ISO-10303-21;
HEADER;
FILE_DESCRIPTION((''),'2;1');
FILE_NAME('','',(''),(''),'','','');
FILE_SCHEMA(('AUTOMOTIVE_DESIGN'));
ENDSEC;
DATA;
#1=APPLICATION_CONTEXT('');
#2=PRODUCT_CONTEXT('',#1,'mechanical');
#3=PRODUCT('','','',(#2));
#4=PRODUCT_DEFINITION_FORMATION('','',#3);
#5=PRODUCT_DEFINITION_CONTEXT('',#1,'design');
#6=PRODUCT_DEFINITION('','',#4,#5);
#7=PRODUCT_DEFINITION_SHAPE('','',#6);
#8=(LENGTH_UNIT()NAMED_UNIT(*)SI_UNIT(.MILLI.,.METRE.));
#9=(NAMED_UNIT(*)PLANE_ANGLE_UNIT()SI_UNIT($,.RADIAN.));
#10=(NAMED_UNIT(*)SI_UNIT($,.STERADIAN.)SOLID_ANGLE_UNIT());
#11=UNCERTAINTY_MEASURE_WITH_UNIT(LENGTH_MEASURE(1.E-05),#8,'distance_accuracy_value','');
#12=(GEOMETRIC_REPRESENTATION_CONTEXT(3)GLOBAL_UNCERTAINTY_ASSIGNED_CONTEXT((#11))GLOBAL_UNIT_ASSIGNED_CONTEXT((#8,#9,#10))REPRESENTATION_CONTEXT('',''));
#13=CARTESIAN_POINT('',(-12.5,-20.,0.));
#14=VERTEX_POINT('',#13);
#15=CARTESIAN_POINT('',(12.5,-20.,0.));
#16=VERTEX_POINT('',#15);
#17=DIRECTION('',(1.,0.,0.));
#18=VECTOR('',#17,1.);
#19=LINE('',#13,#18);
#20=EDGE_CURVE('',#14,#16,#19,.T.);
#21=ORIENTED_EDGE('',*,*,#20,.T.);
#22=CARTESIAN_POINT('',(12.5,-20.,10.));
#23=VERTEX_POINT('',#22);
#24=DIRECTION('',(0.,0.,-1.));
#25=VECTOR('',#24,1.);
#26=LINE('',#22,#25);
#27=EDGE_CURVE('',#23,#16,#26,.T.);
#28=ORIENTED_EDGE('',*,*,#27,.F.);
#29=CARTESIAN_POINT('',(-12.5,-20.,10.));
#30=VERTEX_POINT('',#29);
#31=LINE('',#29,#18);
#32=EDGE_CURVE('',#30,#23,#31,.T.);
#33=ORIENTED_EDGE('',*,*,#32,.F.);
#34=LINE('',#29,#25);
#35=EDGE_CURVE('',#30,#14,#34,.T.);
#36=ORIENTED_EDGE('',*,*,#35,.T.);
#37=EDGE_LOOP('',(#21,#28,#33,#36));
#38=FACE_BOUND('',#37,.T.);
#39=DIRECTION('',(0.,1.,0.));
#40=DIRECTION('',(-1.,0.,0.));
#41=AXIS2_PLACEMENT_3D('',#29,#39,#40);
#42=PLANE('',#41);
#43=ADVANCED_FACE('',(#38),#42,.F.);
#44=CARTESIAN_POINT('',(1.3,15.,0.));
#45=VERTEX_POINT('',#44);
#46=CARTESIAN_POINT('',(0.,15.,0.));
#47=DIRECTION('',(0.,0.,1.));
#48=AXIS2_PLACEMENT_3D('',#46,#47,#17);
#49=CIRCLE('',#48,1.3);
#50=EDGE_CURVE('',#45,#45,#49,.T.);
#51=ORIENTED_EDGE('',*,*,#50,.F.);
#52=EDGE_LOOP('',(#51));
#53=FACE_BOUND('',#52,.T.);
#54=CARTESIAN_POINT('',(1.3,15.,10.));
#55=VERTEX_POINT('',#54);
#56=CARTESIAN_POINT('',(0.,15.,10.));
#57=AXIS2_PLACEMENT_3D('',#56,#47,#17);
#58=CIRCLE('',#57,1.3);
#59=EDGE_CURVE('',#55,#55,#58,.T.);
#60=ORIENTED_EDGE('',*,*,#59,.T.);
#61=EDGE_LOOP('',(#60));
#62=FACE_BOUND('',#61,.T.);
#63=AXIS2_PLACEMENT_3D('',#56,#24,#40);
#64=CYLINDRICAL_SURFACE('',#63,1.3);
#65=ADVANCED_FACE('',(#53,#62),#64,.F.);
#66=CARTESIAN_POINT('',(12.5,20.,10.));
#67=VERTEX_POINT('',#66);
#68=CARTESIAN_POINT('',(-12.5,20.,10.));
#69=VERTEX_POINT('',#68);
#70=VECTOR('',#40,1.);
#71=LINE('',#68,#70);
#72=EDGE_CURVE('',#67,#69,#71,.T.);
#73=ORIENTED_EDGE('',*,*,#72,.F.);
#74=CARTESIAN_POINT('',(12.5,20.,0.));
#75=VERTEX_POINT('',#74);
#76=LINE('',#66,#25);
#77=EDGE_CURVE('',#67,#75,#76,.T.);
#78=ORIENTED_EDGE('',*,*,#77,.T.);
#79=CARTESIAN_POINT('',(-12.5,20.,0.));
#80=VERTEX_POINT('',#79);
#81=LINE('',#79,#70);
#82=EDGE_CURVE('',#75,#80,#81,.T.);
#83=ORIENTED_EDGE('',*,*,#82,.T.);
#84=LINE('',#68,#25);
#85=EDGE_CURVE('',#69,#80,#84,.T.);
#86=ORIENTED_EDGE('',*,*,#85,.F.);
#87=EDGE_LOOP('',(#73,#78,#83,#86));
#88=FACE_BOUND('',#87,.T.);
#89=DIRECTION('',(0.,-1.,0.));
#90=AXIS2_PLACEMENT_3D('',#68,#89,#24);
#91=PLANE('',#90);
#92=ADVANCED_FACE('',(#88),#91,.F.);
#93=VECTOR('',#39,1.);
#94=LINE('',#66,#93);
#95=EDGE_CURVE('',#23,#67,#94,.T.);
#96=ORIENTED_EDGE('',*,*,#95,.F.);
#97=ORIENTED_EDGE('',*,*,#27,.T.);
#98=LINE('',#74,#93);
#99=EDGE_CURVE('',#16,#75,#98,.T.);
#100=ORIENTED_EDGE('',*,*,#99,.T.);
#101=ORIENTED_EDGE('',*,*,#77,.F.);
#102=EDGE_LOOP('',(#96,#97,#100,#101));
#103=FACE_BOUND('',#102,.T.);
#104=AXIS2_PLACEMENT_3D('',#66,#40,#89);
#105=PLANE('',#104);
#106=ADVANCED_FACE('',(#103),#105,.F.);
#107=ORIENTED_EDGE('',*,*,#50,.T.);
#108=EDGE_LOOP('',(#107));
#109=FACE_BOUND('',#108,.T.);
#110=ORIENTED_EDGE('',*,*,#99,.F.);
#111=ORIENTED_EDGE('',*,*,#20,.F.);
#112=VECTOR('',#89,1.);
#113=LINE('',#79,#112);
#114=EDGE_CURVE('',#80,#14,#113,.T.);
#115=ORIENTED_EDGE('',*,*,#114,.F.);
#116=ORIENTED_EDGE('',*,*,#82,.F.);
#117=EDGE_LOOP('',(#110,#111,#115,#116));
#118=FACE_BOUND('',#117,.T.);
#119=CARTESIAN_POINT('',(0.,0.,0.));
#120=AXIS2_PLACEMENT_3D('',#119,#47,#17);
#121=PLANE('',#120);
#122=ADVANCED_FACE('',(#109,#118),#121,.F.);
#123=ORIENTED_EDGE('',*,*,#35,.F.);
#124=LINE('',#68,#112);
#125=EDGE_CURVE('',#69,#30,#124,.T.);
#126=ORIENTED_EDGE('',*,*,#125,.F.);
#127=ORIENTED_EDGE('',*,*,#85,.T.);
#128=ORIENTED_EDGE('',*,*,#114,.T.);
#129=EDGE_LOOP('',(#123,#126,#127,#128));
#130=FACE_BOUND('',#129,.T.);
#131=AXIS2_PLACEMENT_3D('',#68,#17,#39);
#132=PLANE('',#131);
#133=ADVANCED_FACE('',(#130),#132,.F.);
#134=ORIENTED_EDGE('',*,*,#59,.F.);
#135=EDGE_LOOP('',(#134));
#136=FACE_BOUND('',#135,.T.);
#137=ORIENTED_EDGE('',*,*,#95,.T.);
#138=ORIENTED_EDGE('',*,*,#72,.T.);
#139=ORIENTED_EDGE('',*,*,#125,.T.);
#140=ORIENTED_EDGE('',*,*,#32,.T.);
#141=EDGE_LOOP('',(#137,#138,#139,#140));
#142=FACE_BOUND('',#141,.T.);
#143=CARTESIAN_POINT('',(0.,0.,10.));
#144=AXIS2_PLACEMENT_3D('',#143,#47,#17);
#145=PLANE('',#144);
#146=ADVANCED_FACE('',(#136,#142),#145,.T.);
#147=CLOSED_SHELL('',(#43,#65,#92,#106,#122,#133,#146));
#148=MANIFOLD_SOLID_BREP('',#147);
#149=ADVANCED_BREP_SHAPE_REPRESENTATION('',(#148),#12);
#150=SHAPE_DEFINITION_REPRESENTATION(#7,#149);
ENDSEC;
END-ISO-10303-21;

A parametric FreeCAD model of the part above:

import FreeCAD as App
import Part
import Sketcher


def add_polygon(sketch, points):
    """Adds a closed chain of lines whose ends are joined by coincident constraints."""
    first, n = sketch.GeometryCount, len(points)
    for a, b in zip(points, points[1:] + points[:1]):
        sketch.addGeometry(Part.LineSegment(App.Vector(*a, 0), App.Vector(*b, 0)), False)
    for i in range(n):
        sketch.addConstraint(Sketcher.Constraint("Coincident", first + i, 2, first + (i + 1) % n, 1))

doc = App.newDocument("Part")
body = doc.addObject("PartDesign::Body", "Body")

# Sketch on XY plane
sketch1 = doc.addObject("Sketcher::SketchObject", "Sketch")
body.addObject(sketch1)
sketch1.AttachmentSupport = (doc.XY_Plane, [""])
sketch1.MapMode = "FlatFace"
add_polygon(sketch1, [(-12.5, 20), (-12.5, -20), (12.5, -20), (12.5, 20)])  # lines 0-3
sketch1.addGeometry(Part.Circle(App.Vector(0, 15, 0), App.Vector(0, 0, 1), 1.3), False)  # 4
sketch1.addConstraint(Sketcher.Constraint("Vertical", 0))
sketch1.addConstraint(Sketcher.Constraint("Horizontal", 1))
sketch1.addConstraint(Sketcher.Constraint("Vertical", 2))
sketch1.addConstraint(Sketcher.Constraint("Horizontal", 3))
sketch1.addConstraint(Sketcher.Constraint("Symmetric", 0, 2, 2, 2, -1, 1))
sketch1.addConstraint(Sketcher.Constraint("PointOnObject", 4, 3, -2))
sketch1.addConstraint(Sketcher.Constraint("Diameter", 4, 2.6))
sketch1.addConstraint(Sketcher.Constraint("DistanceX", 1, 1, 1, 2, 25.0))
sketch1.addConstraint(Sketcher.Constraint("DistanceY", 0, 2, 0, 1, 40.0))
sketch1.addConstraint(Sketcher.Constraint("DistanceY", -1, 1, 4, 3, 15.0))
pad1 = doc.addObject("PartDesign::Pad", "Pad")
body.addObject(pad1)
pad1.Profile = sketch1
pad1.Length = 10

doc.recompute()
